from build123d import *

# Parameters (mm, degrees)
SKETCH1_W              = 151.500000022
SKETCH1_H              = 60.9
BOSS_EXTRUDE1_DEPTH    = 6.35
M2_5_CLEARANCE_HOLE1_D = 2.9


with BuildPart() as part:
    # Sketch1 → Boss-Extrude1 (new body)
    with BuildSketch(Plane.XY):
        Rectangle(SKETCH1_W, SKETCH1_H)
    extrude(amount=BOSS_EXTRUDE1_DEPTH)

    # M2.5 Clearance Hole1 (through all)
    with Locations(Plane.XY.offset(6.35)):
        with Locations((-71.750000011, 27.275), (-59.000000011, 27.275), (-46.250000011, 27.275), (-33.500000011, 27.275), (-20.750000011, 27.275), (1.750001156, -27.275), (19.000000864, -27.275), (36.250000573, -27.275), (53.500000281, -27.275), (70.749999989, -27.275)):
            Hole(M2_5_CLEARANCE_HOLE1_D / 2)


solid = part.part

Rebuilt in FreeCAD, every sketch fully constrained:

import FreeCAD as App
import Part
import Sketcher
Q = App.Units.Quantity


def add_polygon(sketch, points):
    """Adds a closed chain of lines whose ends are joined by coincident constraints."""
    first, n = sketch.GeometryCount, len(points)
    for a, b in zip(points, points[1:] + points[:1]):
        sketch.addGeometry(Part.LineSegment(App.Vector(*a, 0), App.Vector(*b, 0)), False)
    for i in range(n):
        sketch.addConstraint(Sketcher.Constraint("Coincident", first + i, 2, first + (i + 1) % n, 1))

doc = App.newDocument("Part")
body = doc.addObject("PartDesign::Body", "Body")

# Sketch on XY plane
sketch1 = body.newObject("Sketcher::SketchObject", "Sketch")
sketch1.AttachmentSupport = (doc.getObject("XY_Plane"), [""])
sketch1.MapMode = "FlatFace"
add_polygon(sketch1, [(-75.75, 30.45), (-75.75, -30.45), (75.75, -30.45), (75.75, 30.45)])  # lines 0-3
sketch1.addConstraint([
    Sketcher.Constraint("Vertical", 0),
    Sketcher.Constraint("Horizontal", 1),
    Sketcher.Constraint("Vertical", 2),
    Sketcher.Constraint("Horizontal", 3),
    Sketcher.Constraint("Symmetric", 0, 2, 2, 2, -1, 1),
    Sketcher.Constraint("DistanceX", 1, 1, 1, 2, Q("151.5 mm")),
    Sketcher.Constraint("DistanceY", 0, 2, 0, 1, Q("60.9 mm")),
])
pad1 = body.newObject("PartDesign::Pad", "Pad")
pad1.Profile = sketch1
pad1.Length = 6.35

# Sketch on XY plane
sketch2 = body.newObject("Sketcher::SketchObject", "Sketch001")
sketch2.AttachmentSupport = (doc.getObject("XY_Plane"), [""])
sketch2.MapMode = "FlatFace"
sketch2.AttachmentOffset = App.Placement(App.Vector(0, 0, 6.35), App.Rotation())
sketch2.addGeometry([
    Part.Circle(App.Vector(-71.75, 27.275, 0), App.Vector(0, 0, 1), 1.45),  # 0
    Part.Circle(App.Vector(-59, 27.275, 0), App.Vector(0, 0, 1), 1.45),  # 1
    Part.Circle(App.Vector(-46.25, 27.275, 0), App.Vector(0, 0, 1), 1.45),  # 2
    Part.Circle(App.Vector(-33.5, 27.275, 0), App.Vector(0, 0, 1), 1.45),  # 3
    Part.Circle(App.Vector(-20.75, 27.275, 0), App.Vector(0, 0, 1), 1.45),  # 4
    Part.Circle(App.Vector(1.750001, -27.275, 0), App.Vector(0, 0, 1), 1.45),  # 5
    Part.Circle(App.Vector(19.000001, -27.275, 0), App.Vector(0, 0, 1), 1.45),  # 6
    Part.Circle(App.Vector(36.250001, -27.275, 0), App.Vector(0, 0, 1), 1.45),  # 7
    Part.Circle(App.Vector(53.5, -27.275, 0), App.Vector(0, 0, 1), 1.45),  # 8
    Part.Circle(App.Vector(70.75, -27.275, 0), App.Vector(0, 0, 1), 1.45),  # 9
], False)
sketch2.addConstraint([
    Sketcher.Constraint("Equal", 0, 1),
    Sketcher.Constraint("Equal", 1, 2),
    Sketcher.Constraint("Equal", 2, 3),
    Sketcher.Constraint("Equal", 3, 4),
    Sketcher.Constraint("Equal", 4, 5),
    Sketcher.Constraint("Equal", 5, 6),
    Sketcher.Constraint("Equal", 6, 7),
    Sketcher.Constraint("Equal", 7, 8),
    Sketcher.Constraint("Equal", 8, 9),
    Sketcher.Constraint("Horizontal", 0, 3, 1, 3),
    Sketcher.Constraint("Horizontal", 1, 3, 2, 3),
    Sketcher.Constraint("Horizontal", 2, 3, 3, 3),
    Sketcher.Constraint("Horizontal", 3, 3, 4, 3),
    Sketcher.Constraint("Horizontal", 5, 3, 6, 3),
    Sketcher.Constraint("Horizontal", 6, 3, 7, 3),
    Sketcher.Constraint("Horizontal", 7, 3, 8, 3),
    Sketcher.Constraint("Horizontal", 8, 3, 9, 3),
    Sketcher.Constraint("Diameter", 0, Q("2.9 mm")),
    Sketcher.Constraint("DistanceX", 1, 3, -1, 1, Q("59 mm")),
    Sketcher.Constraint("DistanceX", -1, 1, 6, 3, Q("19.000001 mm")),
    Sketcher.Constraint("DistanceX", 0, 3, 4, 3, Q("51 mm")),
    Sketcher.Constraint("DistanceX", 2, 3, 5, 3, Q("48.000001 mm")),
    Sketcher.Constraint("DistanceX", 4, 3, 7, 3, Q("57.000001 mm")),
    Sketcher.Constraint("DistanceX", 3, 3, 8, 3, Q("87 mm")),
    Sketcher.Constraint("DistanceX", 5, 3, 9, 3, Q("68.999999 mm")),
    Sketcher.Constraint("DistanceX", 3, 3, -1, 1, Q("33.5 mm")),
    Sketcher.Constraint("DistanceX", 0, 3, 2, 3, Q("25.5 mm")),
    Sketcher.Constraint("DistanceX", 0, 3, -1, 1, Q("71.75 mm")),
    Sketcher.Constraint("DistanceY", 5, 3, 4, 3, Q("54.55 mm")),
    Sketcher.Constraint("DistanceY", -1, 1, 0, 3, Q("27.275 mm")),
])
doc.recompute()
hole = body.newObject("PartDesign::Hole", "Hole")
hole.Profile = sketch2
hole.ThreadType = "None"
hole.Diameter = 2.9
hole.DepthType = "ThroughAll"

doc.recompute()
